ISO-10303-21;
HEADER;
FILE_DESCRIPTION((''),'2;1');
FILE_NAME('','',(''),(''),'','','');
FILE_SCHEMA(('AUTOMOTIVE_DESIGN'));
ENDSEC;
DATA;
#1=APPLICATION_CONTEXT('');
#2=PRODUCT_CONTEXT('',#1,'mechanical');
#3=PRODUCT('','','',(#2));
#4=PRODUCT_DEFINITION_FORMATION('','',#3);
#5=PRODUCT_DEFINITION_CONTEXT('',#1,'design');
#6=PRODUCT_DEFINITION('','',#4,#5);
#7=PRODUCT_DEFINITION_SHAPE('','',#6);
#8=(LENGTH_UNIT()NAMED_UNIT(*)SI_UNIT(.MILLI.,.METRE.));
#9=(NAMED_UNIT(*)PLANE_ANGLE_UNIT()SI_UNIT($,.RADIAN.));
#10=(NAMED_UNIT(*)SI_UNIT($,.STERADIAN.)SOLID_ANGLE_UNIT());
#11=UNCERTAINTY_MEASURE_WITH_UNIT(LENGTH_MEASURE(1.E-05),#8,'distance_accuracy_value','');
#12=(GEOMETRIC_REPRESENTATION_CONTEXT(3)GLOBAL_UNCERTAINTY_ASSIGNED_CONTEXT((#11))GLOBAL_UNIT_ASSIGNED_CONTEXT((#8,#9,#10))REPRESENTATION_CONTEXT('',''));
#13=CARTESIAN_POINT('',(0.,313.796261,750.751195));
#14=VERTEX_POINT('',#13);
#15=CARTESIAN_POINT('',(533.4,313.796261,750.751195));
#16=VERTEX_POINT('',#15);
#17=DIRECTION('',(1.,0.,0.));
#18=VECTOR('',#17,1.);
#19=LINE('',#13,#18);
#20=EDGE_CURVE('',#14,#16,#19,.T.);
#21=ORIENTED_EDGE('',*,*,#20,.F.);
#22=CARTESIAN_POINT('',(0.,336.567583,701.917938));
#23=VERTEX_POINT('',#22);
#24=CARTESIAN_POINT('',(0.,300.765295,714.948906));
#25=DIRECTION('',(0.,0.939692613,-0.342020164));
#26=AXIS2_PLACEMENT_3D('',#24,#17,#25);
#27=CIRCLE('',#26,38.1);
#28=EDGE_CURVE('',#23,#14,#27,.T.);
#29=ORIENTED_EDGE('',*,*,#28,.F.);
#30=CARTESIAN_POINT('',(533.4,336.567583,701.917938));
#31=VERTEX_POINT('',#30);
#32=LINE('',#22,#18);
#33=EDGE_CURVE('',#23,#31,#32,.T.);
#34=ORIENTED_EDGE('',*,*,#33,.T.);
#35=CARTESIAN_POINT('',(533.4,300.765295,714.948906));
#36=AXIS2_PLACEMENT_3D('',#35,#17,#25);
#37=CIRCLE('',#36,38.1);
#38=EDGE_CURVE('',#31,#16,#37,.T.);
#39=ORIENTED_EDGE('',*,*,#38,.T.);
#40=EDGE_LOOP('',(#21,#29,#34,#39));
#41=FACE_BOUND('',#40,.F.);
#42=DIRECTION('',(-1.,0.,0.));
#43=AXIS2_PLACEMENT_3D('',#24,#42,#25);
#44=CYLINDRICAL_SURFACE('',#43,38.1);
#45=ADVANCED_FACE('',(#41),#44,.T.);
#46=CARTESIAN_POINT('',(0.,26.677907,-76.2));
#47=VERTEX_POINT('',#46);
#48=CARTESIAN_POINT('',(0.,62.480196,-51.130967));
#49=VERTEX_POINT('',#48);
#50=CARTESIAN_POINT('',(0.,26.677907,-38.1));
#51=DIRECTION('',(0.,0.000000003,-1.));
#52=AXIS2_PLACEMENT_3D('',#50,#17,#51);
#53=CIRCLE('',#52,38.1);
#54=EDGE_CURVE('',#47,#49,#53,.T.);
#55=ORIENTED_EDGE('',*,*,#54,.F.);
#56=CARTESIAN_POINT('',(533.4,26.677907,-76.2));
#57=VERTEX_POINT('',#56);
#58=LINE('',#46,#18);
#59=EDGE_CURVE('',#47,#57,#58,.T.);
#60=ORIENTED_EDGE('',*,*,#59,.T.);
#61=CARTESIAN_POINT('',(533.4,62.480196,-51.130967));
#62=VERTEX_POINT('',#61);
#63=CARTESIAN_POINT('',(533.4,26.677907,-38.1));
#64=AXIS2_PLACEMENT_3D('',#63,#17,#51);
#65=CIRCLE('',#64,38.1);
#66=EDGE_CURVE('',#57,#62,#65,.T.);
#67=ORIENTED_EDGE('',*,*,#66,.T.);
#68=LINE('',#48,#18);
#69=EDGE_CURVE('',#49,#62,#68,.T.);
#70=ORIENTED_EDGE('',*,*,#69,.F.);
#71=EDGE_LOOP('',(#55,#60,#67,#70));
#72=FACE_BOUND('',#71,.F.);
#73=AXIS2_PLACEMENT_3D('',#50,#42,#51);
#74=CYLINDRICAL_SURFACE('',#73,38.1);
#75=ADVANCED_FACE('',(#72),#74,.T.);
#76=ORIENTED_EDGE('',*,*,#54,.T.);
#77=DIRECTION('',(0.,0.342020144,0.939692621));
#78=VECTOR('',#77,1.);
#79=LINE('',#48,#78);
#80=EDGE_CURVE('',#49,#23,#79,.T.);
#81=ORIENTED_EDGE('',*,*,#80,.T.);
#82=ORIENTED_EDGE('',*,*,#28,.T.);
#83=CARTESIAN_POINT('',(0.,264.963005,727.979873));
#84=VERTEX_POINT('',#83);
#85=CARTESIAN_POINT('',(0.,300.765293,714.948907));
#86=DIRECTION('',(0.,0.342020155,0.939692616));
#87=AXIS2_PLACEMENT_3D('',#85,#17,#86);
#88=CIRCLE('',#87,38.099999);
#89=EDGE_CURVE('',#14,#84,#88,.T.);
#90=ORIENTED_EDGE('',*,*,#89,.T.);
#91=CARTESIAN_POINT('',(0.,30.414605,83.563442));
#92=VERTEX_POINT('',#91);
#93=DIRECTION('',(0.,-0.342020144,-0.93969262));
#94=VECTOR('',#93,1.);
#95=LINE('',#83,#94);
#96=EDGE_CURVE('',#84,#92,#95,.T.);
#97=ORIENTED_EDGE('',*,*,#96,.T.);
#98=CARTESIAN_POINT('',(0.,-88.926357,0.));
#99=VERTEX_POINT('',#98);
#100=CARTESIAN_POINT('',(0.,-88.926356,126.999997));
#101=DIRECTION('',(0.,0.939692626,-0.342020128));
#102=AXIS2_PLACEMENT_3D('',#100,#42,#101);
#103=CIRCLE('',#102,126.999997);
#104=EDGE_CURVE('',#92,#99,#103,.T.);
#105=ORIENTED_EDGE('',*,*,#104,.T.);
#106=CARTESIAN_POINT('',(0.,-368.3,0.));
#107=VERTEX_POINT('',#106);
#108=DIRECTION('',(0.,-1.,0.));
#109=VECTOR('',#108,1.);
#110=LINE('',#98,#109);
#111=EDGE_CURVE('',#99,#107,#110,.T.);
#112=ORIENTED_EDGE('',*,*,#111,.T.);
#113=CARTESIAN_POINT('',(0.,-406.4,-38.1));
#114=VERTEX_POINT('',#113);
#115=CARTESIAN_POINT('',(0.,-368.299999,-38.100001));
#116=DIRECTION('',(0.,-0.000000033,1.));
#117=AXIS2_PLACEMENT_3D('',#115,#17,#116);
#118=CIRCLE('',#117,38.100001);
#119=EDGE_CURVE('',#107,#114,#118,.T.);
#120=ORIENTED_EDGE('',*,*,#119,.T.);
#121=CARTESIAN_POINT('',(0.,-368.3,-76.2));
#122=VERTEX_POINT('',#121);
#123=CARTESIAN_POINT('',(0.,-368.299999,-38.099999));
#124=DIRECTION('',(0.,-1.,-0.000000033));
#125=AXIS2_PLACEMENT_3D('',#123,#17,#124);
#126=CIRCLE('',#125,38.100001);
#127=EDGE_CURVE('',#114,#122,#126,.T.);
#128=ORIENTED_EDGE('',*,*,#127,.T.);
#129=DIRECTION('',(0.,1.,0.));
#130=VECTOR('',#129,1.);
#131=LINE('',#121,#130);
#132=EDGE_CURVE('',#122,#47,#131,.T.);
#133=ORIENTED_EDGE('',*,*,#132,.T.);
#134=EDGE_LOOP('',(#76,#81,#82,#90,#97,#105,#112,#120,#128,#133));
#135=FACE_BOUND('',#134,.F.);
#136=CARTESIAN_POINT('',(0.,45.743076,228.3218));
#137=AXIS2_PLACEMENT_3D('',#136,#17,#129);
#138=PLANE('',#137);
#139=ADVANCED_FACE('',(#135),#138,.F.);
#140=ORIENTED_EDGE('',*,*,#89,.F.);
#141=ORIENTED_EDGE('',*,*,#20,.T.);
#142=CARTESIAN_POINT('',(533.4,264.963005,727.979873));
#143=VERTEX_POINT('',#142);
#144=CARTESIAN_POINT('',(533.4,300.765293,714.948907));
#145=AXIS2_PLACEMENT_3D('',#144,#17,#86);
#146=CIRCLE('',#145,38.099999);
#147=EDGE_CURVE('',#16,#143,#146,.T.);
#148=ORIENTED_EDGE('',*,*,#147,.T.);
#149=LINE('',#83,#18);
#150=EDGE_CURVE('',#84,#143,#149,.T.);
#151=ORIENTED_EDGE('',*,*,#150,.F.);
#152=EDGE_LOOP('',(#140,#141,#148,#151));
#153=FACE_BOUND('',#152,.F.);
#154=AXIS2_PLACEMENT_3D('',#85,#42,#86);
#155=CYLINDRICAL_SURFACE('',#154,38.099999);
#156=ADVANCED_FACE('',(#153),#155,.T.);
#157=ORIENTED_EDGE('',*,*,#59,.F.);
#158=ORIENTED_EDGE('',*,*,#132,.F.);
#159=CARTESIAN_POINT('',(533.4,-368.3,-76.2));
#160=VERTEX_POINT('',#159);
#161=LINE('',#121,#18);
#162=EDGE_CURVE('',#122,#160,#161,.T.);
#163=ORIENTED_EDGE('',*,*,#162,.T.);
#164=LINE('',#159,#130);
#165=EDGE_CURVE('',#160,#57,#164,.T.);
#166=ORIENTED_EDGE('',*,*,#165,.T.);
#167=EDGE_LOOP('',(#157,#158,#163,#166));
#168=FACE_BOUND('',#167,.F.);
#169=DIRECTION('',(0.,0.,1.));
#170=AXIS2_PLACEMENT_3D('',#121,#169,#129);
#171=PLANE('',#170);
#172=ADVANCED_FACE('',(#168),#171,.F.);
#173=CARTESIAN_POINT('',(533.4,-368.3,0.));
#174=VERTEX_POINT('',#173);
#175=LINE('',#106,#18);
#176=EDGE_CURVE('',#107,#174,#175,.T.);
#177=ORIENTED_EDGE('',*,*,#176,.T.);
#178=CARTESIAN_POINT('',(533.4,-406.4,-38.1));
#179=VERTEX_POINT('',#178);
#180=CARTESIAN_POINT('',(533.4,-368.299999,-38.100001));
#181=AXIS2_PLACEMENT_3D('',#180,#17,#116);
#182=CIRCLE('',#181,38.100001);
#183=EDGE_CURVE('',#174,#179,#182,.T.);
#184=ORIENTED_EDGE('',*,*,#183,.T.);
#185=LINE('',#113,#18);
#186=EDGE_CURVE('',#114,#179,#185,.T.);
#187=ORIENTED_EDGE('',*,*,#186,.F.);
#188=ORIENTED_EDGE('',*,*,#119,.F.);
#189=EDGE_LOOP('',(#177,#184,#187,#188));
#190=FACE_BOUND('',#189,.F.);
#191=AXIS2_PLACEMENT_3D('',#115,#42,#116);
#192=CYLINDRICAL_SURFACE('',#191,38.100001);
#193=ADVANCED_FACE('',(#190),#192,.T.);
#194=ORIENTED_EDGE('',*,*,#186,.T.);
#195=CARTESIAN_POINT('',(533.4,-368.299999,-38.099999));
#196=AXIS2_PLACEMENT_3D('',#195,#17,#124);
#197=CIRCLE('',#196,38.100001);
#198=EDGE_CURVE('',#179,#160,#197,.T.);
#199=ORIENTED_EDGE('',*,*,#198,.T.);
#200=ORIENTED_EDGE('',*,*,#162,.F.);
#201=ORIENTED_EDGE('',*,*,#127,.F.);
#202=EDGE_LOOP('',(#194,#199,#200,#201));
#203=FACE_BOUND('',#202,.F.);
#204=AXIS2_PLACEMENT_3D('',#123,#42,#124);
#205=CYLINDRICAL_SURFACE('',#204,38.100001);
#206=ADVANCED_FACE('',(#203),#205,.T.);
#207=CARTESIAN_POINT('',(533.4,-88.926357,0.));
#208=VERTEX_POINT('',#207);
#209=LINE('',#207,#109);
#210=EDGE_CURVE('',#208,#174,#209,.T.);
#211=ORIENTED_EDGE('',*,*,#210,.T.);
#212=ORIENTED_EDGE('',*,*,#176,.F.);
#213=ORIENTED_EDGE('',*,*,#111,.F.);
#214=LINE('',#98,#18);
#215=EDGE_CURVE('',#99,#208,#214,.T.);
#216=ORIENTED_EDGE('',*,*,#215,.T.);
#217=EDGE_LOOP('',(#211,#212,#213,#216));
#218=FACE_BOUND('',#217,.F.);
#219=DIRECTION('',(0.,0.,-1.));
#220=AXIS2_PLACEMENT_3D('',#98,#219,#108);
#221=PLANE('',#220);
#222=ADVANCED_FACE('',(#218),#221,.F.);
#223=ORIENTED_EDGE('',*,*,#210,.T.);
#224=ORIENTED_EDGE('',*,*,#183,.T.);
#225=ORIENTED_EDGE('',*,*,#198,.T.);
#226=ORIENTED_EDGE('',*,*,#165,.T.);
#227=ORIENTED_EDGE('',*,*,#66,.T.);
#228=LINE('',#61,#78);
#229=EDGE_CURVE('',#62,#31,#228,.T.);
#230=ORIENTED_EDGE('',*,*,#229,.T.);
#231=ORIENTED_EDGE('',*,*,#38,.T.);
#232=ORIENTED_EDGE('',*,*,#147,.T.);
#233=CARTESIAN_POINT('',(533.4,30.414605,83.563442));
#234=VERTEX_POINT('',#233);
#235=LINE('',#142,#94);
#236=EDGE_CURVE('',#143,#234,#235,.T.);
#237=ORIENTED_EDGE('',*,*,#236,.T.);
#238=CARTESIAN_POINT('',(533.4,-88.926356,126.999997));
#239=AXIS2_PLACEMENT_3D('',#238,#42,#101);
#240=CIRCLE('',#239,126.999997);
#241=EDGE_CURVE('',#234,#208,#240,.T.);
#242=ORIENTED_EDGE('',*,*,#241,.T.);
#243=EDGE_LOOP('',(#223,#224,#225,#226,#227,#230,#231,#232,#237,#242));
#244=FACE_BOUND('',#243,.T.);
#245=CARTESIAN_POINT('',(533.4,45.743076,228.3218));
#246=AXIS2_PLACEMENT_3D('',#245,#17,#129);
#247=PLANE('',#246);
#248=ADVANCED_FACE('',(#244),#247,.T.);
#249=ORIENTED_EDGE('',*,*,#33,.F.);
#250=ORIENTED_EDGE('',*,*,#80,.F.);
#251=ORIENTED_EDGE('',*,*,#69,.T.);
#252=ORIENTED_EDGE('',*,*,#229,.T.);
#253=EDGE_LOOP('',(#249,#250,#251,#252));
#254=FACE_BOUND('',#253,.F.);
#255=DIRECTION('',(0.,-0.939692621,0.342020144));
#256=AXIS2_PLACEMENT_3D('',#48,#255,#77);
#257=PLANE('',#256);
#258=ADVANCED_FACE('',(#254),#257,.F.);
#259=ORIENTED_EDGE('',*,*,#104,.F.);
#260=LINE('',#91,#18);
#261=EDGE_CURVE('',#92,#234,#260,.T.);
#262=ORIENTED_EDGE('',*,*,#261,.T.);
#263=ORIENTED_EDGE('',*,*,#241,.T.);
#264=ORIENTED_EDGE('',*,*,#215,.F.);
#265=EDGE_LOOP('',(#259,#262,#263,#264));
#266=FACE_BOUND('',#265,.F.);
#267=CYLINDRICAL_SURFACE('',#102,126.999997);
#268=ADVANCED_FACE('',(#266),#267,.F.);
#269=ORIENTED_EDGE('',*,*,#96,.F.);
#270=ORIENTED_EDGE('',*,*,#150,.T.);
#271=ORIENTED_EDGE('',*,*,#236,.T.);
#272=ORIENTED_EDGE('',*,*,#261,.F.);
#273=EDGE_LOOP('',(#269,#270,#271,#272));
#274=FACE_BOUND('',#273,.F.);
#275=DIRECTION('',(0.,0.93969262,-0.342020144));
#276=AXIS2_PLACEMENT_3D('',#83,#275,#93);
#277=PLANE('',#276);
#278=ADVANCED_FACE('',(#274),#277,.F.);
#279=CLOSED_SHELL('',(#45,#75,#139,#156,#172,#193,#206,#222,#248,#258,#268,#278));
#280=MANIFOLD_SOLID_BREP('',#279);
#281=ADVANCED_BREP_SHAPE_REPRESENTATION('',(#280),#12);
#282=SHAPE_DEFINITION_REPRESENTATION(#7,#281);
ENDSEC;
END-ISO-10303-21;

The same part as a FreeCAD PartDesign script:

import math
import FreeCAD as App
import Part
import Sketcher

V = App.Vector
Q = App.Units.Quantity

doc = App.newDocument("Part")
body = doc.addObject("PartDesign::Body", "Body")

# Sketch on YZ plane
sketch1 = doc.addObject("Sketcher::SketchObject", "Sketch")
body.addObject(sketch1)
sketch1.AttachmentSupport = (doc.YZ_Plane, [""])
sketch1.MapMode = "FlatFace"
sketch1.addGeometry([
    Part.LineSegment(V(265, 728, 0), V(30, 84, 0)),  # 0
    Part.ArcOfCircle(Part.Circle(V(-89, 127, 0), V(0, 0, 1), 127), math.radians(-90), math.radians(-20)),  # 1
    Part.LineSegment(V(-89, 0, 0), V(-368, 0, 0)),  # 2
    Part.ArcOfCircle(Part.Circle(V(-368, -38, 0), V(0, 0, 1), 38), math.radians(90), math.radians(180)),  # 3
    Part.ArcOfCircle(Part.Circle(V(-368, -38, 0), V(0, 0, 1), 38), math.radians(-180), math.radians(-90)),  # 4
    Part.LineSegment(V(-368, -76, 0), V(27, -76, 0)),  # 5
    Part.ArcOfCircle(Part.Circle(V(27, -38, 0), V(0, 0, 1), 38), math.radians(-90), math.radians(-20)),  # 6
    Part.LineSegment(V(62, -51, 0), V(337, 702, 0)),  # 7
    Part.ArcOfCircle(Part.Circle(V(301, 715, 0), V(0, 0, 1), 38), math.radians(-20), math.radians(70)),  # 8
    Part.ArcOfCircle(Part.Circle(V(301, 715, 0), V(0, 0, 1), 38), math.radians(70), math.radians(160)),  # 9
], False)
sketch1.addConstraint([
    Sketcher.Constraint("Tangent", 0, 2, 1, 2),
    Sketcher.Constraint("Tangent", 1, 1, 2, 1),
    Sketcher.Constraint("Tangent", 2, 2, 3, 1),
    Sketcher.Constraint("Tangent", 3, 2, 4, 1),
    Sketcher.Constraint("Tangent", 4, 2, 5, 1),
    Sketcher.Constraint("Tangent", 5, 2, 6, 1),
    Sketcher.Constraint("Tangent", 6, 2, 7, 1),
    Sketcher.Constraint("Tangent", 7, 2, 8, 1),
    Sketcher.Constraint("Tangent", 8, 2, 9, 1),
    Sketcher.Constraint("Tangent", 9, 2, 0, 1),
    Sketcher.Constraint("Horizontal", 2),
    Sketcher.Constraint("Horizontal", 5),
    Sketcher.Constraint("Equal", 3, 4),
    Sketcher.Constraint("Equal", 4, 6),
    Sketcher.Constraint("Equal", 6, 8),
    Sketcher.Constraint("Equal", 8, 9),
    Sketcher.Constraint("PointOnObject", 1, 1, -1),
    Sketcher.Constraint("Parallel", 0, 7),
    Sketcher.Constraint("Horizontal", 6, 3, 3, 2),
    Sketcher.Constraint("Radius", 1, Q("4.9999999 in")),
    Sketcher.Constraint("Radius", 3, Q("1.5 in")),
    Sketcher.Constraint("DistanceX", 3, 2, -1, 1, Q("16 in")),
    Sketcher.Constraint("Angle", 0, Q("-110 deg")),
    Sketcher.Constraint("DistanceX", 0, 2, 9, 2, 234.5484),
    Sketcher.Constraint("DistanceX", 2, 2, 2, 1, 279.373643),
    Sketcher.Constraint("DistanceX", -1, 1, 8, 2, 313.796261),
])
pad1 = doc.addObject("PartDesign::Pad", "Pad")
body.addObject(pad1)
pad1.Profile = sketch1
pad1.Length = Q("21 in")

doc.recompute()
